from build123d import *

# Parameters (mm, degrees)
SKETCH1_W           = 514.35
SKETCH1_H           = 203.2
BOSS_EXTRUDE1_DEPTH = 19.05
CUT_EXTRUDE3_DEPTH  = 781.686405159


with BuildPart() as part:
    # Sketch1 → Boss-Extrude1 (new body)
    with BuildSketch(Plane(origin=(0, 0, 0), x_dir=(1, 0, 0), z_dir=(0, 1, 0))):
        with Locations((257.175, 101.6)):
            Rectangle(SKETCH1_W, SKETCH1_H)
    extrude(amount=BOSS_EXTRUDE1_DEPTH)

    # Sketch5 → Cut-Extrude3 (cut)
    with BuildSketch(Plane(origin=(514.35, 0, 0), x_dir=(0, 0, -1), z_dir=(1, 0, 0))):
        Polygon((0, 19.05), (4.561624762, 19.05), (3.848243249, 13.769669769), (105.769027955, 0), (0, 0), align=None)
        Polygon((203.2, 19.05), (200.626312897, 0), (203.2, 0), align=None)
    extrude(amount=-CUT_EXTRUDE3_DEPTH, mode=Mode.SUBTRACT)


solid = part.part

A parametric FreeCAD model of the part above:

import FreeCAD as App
import Part
import Sketcher

V = App.Vector
Q = App.Units.Quantity


def add_polygon(sketch, points):
    """Adds a closed chain of lines whose ends are joined by coincident constraints."""
    first, n = sketch.GeometryCount, len(points)
    for a, b in zip(points, points[1:] + points[:1]):
        sketch.addGeometry(Part.LineSegment(App.Vector(*a, 0), App.Vector(*b, 0)), False)
    for i in range(n):
        sketch.addConstraint(Sketcher.Constraint("Coincident", first + i, 2, first + (i + 1) % n, 1))

doc = App.newDocument("Part")
body = doc.addObject("PartDesign::Body", "Body")

sketch1 = doc.addObject("Sketcher::SketchObject", "Sketch")
body.addObject(sketch1)
sketch1.AttachmentSupport = (doc.XZ_Plane, [""])
sketch1.MapMode = "FlatFace"
add_polygon(sketch1, [(0, -203), (0, 0), (514, 0), (514, -203)])
sketch1.addConstraint([
    Sketcher.Constraint("Vertical", 0),
    Sketcher.Constraint("Horizontal", 1),
    Sketcher.Constraint("Vertical", 2),
    Sketcher.Constraint("Horizontal", 3),
    Sketcher.Constraint("Coincident", 0, 2, -1, 1),
    Sketcher.Constraint("DistanceY", 0, 1, 0, 2, Q("8 in")),
    Sketcher.Constraint("DistanceX", 1, 1, 1, 2, Q("20.25 in")),
])
pad1 = doc.addObject("PartDesign::Pad", "Pad")
body.addObject(pad1)
pad1.Profile = sketch1
pad1.Length = Q("0.75 in")
pad1.Reversed = True

sketch2 = doc.addObject("Sketcher::SketchObject", "Sketch001")
body.addObject(sketch2)
sketch2.AttachmentSupport = (doc.YZ_Plane, [""])
sketch2.MapMode = "FlatFace"
sketch2.AttachmentOffset = App.Placement(V(0, 0, 20.25 * 25.4), App.Rotation())
add_polygon(sketch2, [(19.1, -4.6), (19.1, 0), (0, 0), (0, -105.8), (13.8, -3.8)])
add_polygon(sketch2, [(19.1, -203.2), (0, -200.6), (0, -203.2)])
sketch2.addConstraint([
    Sketcher.Constraint("Vertical", 0),
    Sketcher.Constraint("Horizontal", 1),
    Sketcher.Constraint("Vertical", 2),
    Sketcher.Constraint("Vertical", 6),
    Sketcher.Constraint("Horizontal", 7),
    Sketcher.Constraint("Coincident", 1, 2, -1, 1),
    Sketcher.Constraint("PointOnObject", 5, 2, -2),
    Sketcher.Constraint("Perpendicular", 3, 4),
    Sketcher.Constraint("Parallel", 4, 5),
    Sketcher.Constraint("Vertical", 4, 2, 7, 2),
    Sketcher.Constraint("DistanceY", 6, 2, -1, 1, Q("8 in")),
    Sketcher.Constraint("DistanceX", 1, 2, 1, 1, Q("0.75 in")),
    Sketcher.Constraint("Distance", 4, Q("5.328302 mm")),
    Sketcher.Constraint("Distance", 3, Q("102.846731 mm")),
    Sketcher.Constraint("DistanceY", 0, 1, 0, 2, Q("4.561625 mm")),
])
pocket1 = doc.addObject("PartDesign::Pocket", "Pocket")
body.addObject(pocket1)
pocket1.Profile = sketch2
pocket1.Length = 781.686405

doc.recompute()
